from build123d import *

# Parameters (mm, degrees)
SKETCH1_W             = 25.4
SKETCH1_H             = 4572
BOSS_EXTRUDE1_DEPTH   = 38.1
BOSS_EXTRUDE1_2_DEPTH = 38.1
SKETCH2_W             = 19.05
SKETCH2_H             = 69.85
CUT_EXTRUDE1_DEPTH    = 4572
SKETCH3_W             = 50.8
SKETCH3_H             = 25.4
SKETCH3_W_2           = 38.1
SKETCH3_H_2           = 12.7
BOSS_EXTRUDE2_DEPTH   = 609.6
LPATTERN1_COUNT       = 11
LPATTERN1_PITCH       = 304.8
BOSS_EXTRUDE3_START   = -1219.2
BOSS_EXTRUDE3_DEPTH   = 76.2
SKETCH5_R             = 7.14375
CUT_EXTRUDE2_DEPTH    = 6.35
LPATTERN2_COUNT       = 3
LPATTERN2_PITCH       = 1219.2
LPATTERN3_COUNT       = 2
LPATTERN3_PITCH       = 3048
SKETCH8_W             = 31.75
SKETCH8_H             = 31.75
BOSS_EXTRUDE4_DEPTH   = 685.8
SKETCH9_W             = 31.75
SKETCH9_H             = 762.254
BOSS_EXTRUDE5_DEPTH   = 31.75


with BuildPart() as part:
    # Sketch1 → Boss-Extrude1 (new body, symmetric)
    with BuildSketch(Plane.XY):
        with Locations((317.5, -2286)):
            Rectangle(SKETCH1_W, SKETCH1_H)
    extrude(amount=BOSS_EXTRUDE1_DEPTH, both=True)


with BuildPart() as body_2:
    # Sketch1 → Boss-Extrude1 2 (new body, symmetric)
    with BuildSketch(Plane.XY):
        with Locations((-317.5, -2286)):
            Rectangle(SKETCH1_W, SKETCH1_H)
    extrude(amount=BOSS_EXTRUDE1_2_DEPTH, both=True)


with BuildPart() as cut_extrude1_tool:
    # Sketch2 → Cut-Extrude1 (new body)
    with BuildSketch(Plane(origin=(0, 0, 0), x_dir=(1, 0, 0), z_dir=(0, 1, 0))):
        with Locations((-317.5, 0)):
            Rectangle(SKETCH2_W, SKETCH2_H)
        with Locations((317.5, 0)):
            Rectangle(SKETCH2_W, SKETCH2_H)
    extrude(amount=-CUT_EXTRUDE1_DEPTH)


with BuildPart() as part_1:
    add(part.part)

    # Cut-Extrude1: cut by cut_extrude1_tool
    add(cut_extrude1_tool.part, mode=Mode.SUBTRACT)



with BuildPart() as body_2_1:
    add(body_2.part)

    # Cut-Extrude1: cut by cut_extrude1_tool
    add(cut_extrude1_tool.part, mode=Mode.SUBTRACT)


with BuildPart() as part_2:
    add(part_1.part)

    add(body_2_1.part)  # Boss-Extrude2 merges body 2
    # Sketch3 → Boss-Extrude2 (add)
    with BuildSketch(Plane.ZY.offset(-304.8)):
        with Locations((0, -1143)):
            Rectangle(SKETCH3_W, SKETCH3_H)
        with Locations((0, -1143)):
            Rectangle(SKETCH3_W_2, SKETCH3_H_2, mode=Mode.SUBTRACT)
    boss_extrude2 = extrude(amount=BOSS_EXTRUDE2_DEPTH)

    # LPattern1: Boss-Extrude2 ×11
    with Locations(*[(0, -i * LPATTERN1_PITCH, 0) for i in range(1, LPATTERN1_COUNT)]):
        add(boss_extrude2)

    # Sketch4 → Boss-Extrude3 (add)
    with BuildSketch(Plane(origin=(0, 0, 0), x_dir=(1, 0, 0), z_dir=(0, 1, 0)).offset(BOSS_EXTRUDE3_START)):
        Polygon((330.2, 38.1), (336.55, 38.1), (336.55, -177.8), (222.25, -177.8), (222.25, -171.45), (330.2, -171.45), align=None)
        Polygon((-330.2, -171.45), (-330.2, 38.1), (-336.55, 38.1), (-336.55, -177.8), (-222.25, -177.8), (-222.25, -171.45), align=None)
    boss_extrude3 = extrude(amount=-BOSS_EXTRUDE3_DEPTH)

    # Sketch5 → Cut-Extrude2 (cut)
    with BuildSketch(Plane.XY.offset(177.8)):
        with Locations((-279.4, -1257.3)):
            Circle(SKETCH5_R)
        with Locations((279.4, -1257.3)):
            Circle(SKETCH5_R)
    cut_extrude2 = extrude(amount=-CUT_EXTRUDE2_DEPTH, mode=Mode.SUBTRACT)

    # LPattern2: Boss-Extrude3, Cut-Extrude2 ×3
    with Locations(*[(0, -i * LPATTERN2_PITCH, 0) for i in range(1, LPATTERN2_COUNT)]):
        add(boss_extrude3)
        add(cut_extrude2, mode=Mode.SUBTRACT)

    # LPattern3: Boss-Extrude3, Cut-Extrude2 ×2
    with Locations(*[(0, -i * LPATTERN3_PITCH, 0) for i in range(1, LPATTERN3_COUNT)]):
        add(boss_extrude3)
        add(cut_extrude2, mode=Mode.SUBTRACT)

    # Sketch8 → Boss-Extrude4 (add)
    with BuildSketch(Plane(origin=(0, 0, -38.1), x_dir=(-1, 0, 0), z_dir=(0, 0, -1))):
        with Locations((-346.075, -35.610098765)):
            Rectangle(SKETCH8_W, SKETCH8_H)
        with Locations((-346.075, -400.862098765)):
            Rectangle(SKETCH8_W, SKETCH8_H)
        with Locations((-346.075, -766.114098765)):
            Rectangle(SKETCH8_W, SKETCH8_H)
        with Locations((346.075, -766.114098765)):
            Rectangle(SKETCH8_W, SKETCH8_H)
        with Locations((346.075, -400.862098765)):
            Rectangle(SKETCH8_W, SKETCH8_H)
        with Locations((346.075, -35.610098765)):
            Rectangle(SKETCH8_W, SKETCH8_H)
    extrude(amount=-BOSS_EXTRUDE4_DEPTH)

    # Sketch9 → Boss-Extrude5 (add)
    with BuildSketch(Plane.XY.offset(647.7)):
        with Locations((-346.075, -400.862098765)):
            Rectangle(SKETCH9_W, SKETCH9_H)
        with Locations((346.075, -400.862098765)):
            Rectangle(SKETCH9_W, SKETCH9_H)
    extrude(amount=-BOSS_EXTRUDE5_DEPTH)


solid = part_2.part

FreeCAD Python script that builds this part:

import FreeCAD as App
import Part
import Sketcher
Q = App.Units.Quantity


def add_polygon(sketch, points):
    """Adds a closed chain of lines whose ends are joined by coincident constraints."""
    first, n = sketch.GeometryCount, len(points)
    for a, b in zip(points, points[1:] + points[:1]):
        sketch.addGeometry(Part.LineSegment(App.Vector(*a, 0), App.Vector(*b, 0)), False)
    for i in range(n):
        sketch.addConstraint(Sketcher.Constraint("Coincident", first + i, 2, first + (i + 1) % n, 1))

doc = App.newDocument("Part")
body = doc.addObject("PartDesign::Body", "Body")

sketch1 = doc.addObject("Sketcher::SketchObject", "Sketch")
body.addObject(sketch1)
sketch1.AttachmentSupport = (doc.XY_Plane, [""])
sketch1.MapMode = "FlatFace"
add_polygon(sketch1, [(304.8, 0), (304.8, -4572), (330.2, -4572), (330.2, 0)])
sketch1.addConstraint(Sketcher.Constraint("Vertical", 0))
sketch1.addConstraint(Sketcher.Constraint("Horizontal", 1))
sketch1.addConstraint(Sketcher.Constraint("Vertical", 2))
sketch1.addConstraint(Sketcher.Constraint("Horizontal", 3))
sketch1.addConstraint(Sketcher.Constraint("PointOnObject", 2, 2, -1))
sketch1.addConstraint(Sketcher.Constraint("DistanceX", 1, 1, 1, 2, Q("1 in")))
sketch1.addConstraint(Sketcher.Constraint("DistanceY", 0, 2, 0, 1, Q("180 in")))
sketch1.addConstraint(Sketcher.Constraint("DistanceX", -1, 1, 0, 2, Q("12 in")))
pad1 = doc.addObject("PartDesign::Pad", "Pad")
body.addObject(pad1)
pad1.Profile = sketch1
pad1.Length = Q("3 in")
pad1.Midplane = True
body2 = doc.addObject("PartDesign::Body", "Body001")

sketch2 = doc.addObject("Sketcher::SketchObject", "Sketch001")
body2.addObject(sketch2)
sketch2.AttachmentSupport = (doc.getObject("XY_Plane001"), [""])
sketch2.MapMode = "FlatFace"
add_polygon(sketch2, [(-330.2, 0), (-330.2, -4572), (-304.8, -4572), (-304.8, 0)])
sketch2.addConstraint(Sketcher.Constraint("Vertical", 0))
sketch2.addConstraint(Sketcher.Constraint("Horizontal", 1))
sketch2.addConstraint(Sketcher.Constraint("Vertical", 2))
sketch2.addConstraint(Sketcher.Constraint("Horizontal", 3))
sketch2.addConstraint(Sketcher.Constraint("PointOnObject", 2, 2, -1))
sketch2.addConstraint(Sketcher.Constraint("DistanceX", 1, 1, 1, 2, Q("1 in")))
sketch2.addConstraint(Sketcher.Constraint("DistanceY", 0, 2, 0, 1, Q("180 in")))
sketch2.addConstraint(Sketcher.Constraint("DistanceX", 0, 2, -1, 1, Q("13 in")))
pad2 = doc.addObject("PartDesign::Pad", "Pad001")
body2.addObject(pad2)
pad2.Profile = sketch2
pad2.Length = Q("3 in")
pad2.Midplane = True
body3 = doc.addObject("PartDesign::Body", "Body002")
body3.AllowCompound = True

sketch3 = doc.addObject("Sketcher::SketchObject", "Sketch002")
body3.addObject(sketch3)
sketch3.AttachmentSupport = (doc.getObject("XZ_Plane002"), [""])
sketch3.MapMode = "FlatFace"
add_polygon(sketch3, [(-327.025, -34.925), (-327.025, 34.925), (-307.975, 34.925), (-307.975, -34.925)])
add_polygon(sketch3, [(307.975, -34.925), (307.975, 34.925), (327.025, 34.925), (327.025, -34.925)])
sketch3.addConstraint(Sketcher.Constraint("Vertical", 0))
sketch3.addConstraint(Sketcher.Constraint("Horizontal", 1))
sketch3.addConstraint(Sketcher.Constraint("Vertical", 2))
sketch3.addConstraint(Sketcher.Constraint("Horizontal", 3))
sketch3.addConstraint(Sketcher.Constraint("Vertical", 4))
sketch3.addConstraint(Sketcher.Constraint("Horizontal", 5))
sketch3.addConstraint(Sketcher.Constraint("Vertical", 6))
sketch3.addConstraint(Sketcher.Constraint("Horizontal", 7))
sketch3.addConstraint(Sketcher.Constraint("Symmetric", 2, 2, 4, 2, -1, 1))
sketch3.addConstraint(Sketcher.Constraint("Symmetric", 0, 2, 6, 2, -1, 1))
sketch3.addConstraint(Sketcher.Constraint("Horizontal", 1, 2, 4, 2))
sketch3.addConstraint(Sketcher.Constraint("DistanceX", 0, 2, 4, 2, Q("25 in")))
sketch3.addConstraint(Sketcher.Constraint("DistanceX", 1, 1, 1, 2, Q("0.75 in")))
sketch3.addConstraint(Sketcher.Constraint("DistanceY", 0, 1, 0, 2, Q("2.75 in")))
pad3 = doc.addObject("PartDesign::Pad", "Pad002")
body3.addObject(pad3)
pad3.Profile = sketch3
pad3.Length = Q("180 in")
doc.recompute()

body4 = doc.addObject("PartDesign::Body", "Body003")
body4.BaseFeature = body3
boolean = doc.addObject("PartDesign::Boolean", "Boolean")
body.addObject(boolean)
boolean.Type = "Cut"
boolean.addObjects([body4])
doc.recompute()

boolean2 = doc.addObject("PartDesign::Boolean", "Boolean001")
body2.addObject(boolean2)
boolean2.Type = "Cut"
boolean2.addObjects([body3])
body.AllowCompound = True
doc.recompute()

boolean3 = doc.addObject("PartDesign::Boolean", "Boolean002")
body.addObject(boolean3)
boolean3.Type = "Fuse"
boolean3.addObjects([body2])

sketch4 = doc.addObject("Sketcher::SketchObject", "Sketch003")
body.addObject(sketch4)
sketch4.AttachmentSupport = (doc.YZ_Plane, [""])
sketch4.MapMode = "FlatFace"
sketch4.AttachmentOffset = App.Placement(App.Vector(0, 0, 12 * 25.4), App.Rotation())
add_polygon(sketch4, [(-1130.3, -25.4), (-1155.7, -25.4), (-1155.7, 25.4), (-1130.3, 25.4)])
add_polygon(sketch4, [(-1149.35, 19.05), (-1149.35, -19.05), (-1136.65, -19.05), (-1136.65, 19.05)])
sketch4.addConstraint(Sketcher.Constraint("Horizontal", 0))
sketch4.addConstraint(Sketcher.Constraint("Vertical", 1))
sketch4.addConstraint(Sketcher.Constraint("Horizontal", 2))
sketch4.addConstraint(Sketcher.Constraint("Vertical", 3))
sketch4.addConstraint(Sketcher.Constraint("Vertical", 4))
sketch4.addConstraint(Sketcher.Constraint("Horizontal", 5))
sketch4.addConstraint(Sketcher.Constraint("Vertical", 6))
sketch4.addConstraint(Sketcher.Constraint("Horizontal", 7))
sketch4.addConstraint(Sketcher.Constraint("DistanceX", 0, 2, 0, 1, Q("1 in")))
sketch4.addConstraint(Sketcher.Constraint("DistanceY", 1, 1, 1, 2, Q("2 in")))
sketch4.addConstraint(Sketcher.Constraint("DistanceX", 5, 1, 5, 2, Q("0.5 in")))
sketch4.addConstraint(Sketcher.Constraint("DistanceY", 4, 2, 4, 1, Q("1.5 in")))
sketch4.addConstraint(Sketcher.Constraint("DistanceY", 0, 2, -1, 1, Q("1 in")))
sketch4.addConstraint(Sketcher.Constraint("DistanceX", 0, 2, -1, 1, Q("45.5 in")))
sketch4.addConstraint(Sketcher.Constraint("DistanceX", 4, 2, -1, 1, Q("45.25 in")))
sketch4.addConstraint(Sketcher.Constraint("DistanceY", 4, 2, -1, 1, Q("0.75 in")))
pad4 = doc.addObject("PartDesign::Pad", "Pad003")
body.addObject(pad4)
pad4.Profile = sketch4
pad4.Length = Q("24 in")
pad4.Reversed = True
doc.recompute()

linearpattern = doc.addObject("PartDesign::LinearPattern", "LinearPattern")
body.addObject(linearpattern)
linearpattern.Originals = [pad4]
linearpattern.Direction = (doc.Y_Axis, [""])
linearpattern.Mode = "offset"
linearpattern.Offset = Q("12 in")
linearpattern.Occurrences = 11
linearpattern.Reversed = True
body.Tip = linearpattern

sketch5 = doc.addObject("Sketcher::SketchObject", "Sketch004")
body.addObject(sketch5)
sketch5.AttachmentSupport = (doc.XZ_Plane, [""])
sketch5.MapMode = "FlatFace"
sketch5.AttachmentOffset = App.Placement(App.Vector(0, 0, 48 * 25.4), App.Rotation())
add_polygon(sketch5, [(336.55, -38.1), (330.2, -38.1), (330.2, 171.45), (222.25, 171.45), (222.25, 177.8), (336.55, 177.8)])
add_polygon(sketch5, [(-330.2, 171.45), (-330.2, -38.1), (-336.55, -38.1), (-336.55, 177.8), (-222.25, 177.8), (-222.25, 171.45)])
sketch5.addConstraint(Sketcher.Constraint("Horizontal", 0))
sketch5.addConstraint(Sketcher.Constraint("Vertical", 1))
sketch5.addConstraint(Sketcher.Constraint("Horizontal", 2))
sketch5.addConstraint(Sketcher.Constraint("Vertical", 3))
sketch5.addConstraint(Sketcher.Constraint("Horizontal", 4))
sketch5.addConstraint(Sketcher.Constraint("Vertical", 5))
sketch5.addConstraint(Sketcher.Constraint("Vertical", 6))
sketch5.addConstraint(Sketcher.Constraint("Horizontal", 7))
sketch5.addConstraint(Sketcher.Constraint("Vertical", 8))
sketch5.addConstraint(Sketcher.Constraint("Horizontal", 9))
sketch5.addConstraint(Sketcher.Constraint("Vertical", 10))
sketch5.addConstraint(Sketcher.Constraint("Horizontal", 11))
sketch5.addConstraint(Sketcher.Constraint("Symmetric", 0, 2, 6, 2, -2))
sketch5.addConstraint(Sketcher.Constraint("Symmetric", 4, 2, 8, 2, -2))
sketch5.addConstraint(Sketcher.Constraint("Symmetric", 2, 2, 10, 2, -2))
sketch5.addConstraint(Sketcher.Constraint("Equal", 7, 3))
sketch5.addConstraint(Sketcher.Constraint("DistanceX", 4, 1, 4, 2, Q("4.5 in")))
sketch5.addConstraint(Sketcher.Constraint("DistanceY", 5, 2, 5, 1, Q("8.5 in")))
sketch5.addConstraint(Sketcher.Constraint("DistanceX", -1, 1, 0, 2, Q("13 in")))
sketch5.addConstraint(Sketcher.Constraint("DistanceY", -1, 1, 3, 2, Q("7 in")))
sketch5.addConstraint(Sketcher.Constraint("DistanceX", 7, 2, 2, 2, Q("22 in")))
pad5 = doc.addObject("PartDesign::Pad", "Pad004")
body.addObject(pad5)
pad5.Profile = sketch5
pad5.Length = Q("3 in")

sketch6 = doc.addObject("Sketcher::SketchObject", "Sketch005")
body.addObject(sketch6)
sketch6.AttachmentSupport = (doc.XY_Plane, [""])
sketch6.MapMode = "FlatFace"
sketch6.AttachmentOffset = App.Placement(App.Vector(0, 0, 7 * 25.4), App.Rotation())
sketch6.addGeometry(Part.Circle(App.Vector(-279.4, -1257.3, 0), App.Vector(0, 0, 1), 7.14375), False)
sketch6.addGeometry(Part.Circle(App.Vector(279.4, -1257.3, 0), App.Vector(0, 0, 1), 7.14375), False)
sketch6.addConstraint(Sketcher.Constraint("Equal", 0, 1))
sketch6.addConstraint(Sketcher.Constraint("Symmetric", 0, 3, 1, 3, -2))
sketch6.addConstraint(Sketcher.Constraint("Diameter", 0, Q("0.5625 in")))
sketch6.addConstraint(Sketcher.Constraint("DistanceX", 0, 3, -1, 1, Q("11 in")))
sketch6.addConstraint(Sketcher.Constraint("DistanceY", 0, 3, -1, 1, Q("49.5 in")))
pocket1 = doc.addObject("PartDesign::Pocket", "Pocket")
body.addObject(pocket1)
pocket1.Profile = sketch6
pocket1.Length = Q("0.25 in")
doc.recompute()

linearpattern2 = doc.addObject("PartDesign::LinearPattern", "LinearPattern001")
body.addObject(linearpattern2)
linearpattern2.Originals = [pad5, pocket1]
linearpattern2.Direction = (doc.Y_Axis, [""])
linearpattern2.Mode = "offset"
linearpattern2.Offset = Q("48 in")
linearpattern2.Occurrences = 3
linearpattern2.Reversed = True
body.Tip = linearpattern2
doc.recompute()

linearpattern3 = doc.addObject("PartDesign::LinearPattern", "LinearPattern002")
body.addObject(linearpattern3)
linearpattern3.Originals = [pad5, pocket1]
linearpattern3.Direction = (doc.Y_Axis, [""])
linearpattern3.Mode = "offset"
linearpattern3.Offset = Q("120 in")
linearpattern3.Occurrences = 2
linearpattern3.Reversed = True
body.Tip = linearpattern3

sketch7 = doc.addObject("Sketcher::SketchObject", "Sketch006")
body.addObject(sketch7)
sketch7.AttachmentSupport = (doc.XY_Plane, [""])
sketch7.MapMode = "FlatFace"
sketch7.AttachmentOffset = App.Placement(App.Vector(0, 0, -1.5 * 25.4), App.Rotation())
add_polygon(sketch7, [(361.95, -19.735099), (361.95, -51.485099), (330.2, -51.485099), (330.2, -19.735099)])
add_polygon(sketch7, [(361.95, -384.987099), (361.95, -416.737099), (330.2, -416.737099), (330.2, -384.987099)])
add_polygon(sketch7, [(361.95, -750.239099), (361.95, -781.989099), (330.2, -781.989099), (330.2, -750.239099)])
add_polygon(sketch7, [(-330.2, -750.239099), (-330.2, -781.989099), (-361.95, -781.989099), (-361.95, -750.239099)])
add_polygon(sketch7, [(-330.2, -384.987099), (-330.2, -416.737099), (-361.95, -416.737099), (-361.95, -384.987099)])
add_polygon(sketch7, [(-330.2, -19.735099), (-330.2, -51.485099), (-361.95, -51.485099), (-361.95, -19.735099)])
sketch7.addConstraint(Sketcher.Constraint("Vertical", 0))
sketch7.addConstraint(Sketcher.Constraint("Horizontal", 1))
sketch7.addConstraint(Sketcher.Constraint("Vertical", 2))
sketch7.addConstraint(Sketcher.Constraint("Horizontal", 3))
sketch7.addConstraint(Sketcher.Constraint("Vertical", 4))
sketch7.addConstraint(Sketcher.Constraint("Horizontal", 5))
sketch7.addConstraint(Sketcher.Constraint("Vertical", 6))
sketch7.addConstraint(Sketcher.Constraint("Horizontal", 7))
sketch7.addConstraint(Sketcher.Constraint("Vertical", 8))
sketch7.addConstraint(Sketcher.Constraint("Horizontal", 9))
sketch7.addConstraint(Sketcher.Constraint("Vertical", 10))
sketch7.addConstraint(Sketcher.Constraint("Horizontal", 11))
sketch7.addConstraint(Sketcher.Constraint("Vertical", 12))
sketch7.addConstraint(Sketcher.Constraint("Horizontal", 13))
sketch7.addConstraint(Sketcher.Constraint("Vertical", 14))
sketch7.addConstraint(Sketcher.Constraint("Horizontal", 15))
sketch7.addConstraint(Sketcher.Constraint("Vertical", 16))
sketch7.addConstraint(Sketcher.Constraint("Horizontal", 17))
sketch7.addConstraint(Sketcher.Constraint("Vertical", 18))
sketch7.addConstraint(Sketcher.Constraint("Horizontal", 19))
sketch7.addConstraint(Sketcher.Constraint("Vertical", 20))
sketch7.addConstraint(Sketcher.Constraint("Horizontal", 21))
sketch7.addConstraint(Sketcher.Constraint("Vertical", 22))
sketch7.addConstraint(Sketcher.Constraint("Horizontal", 23))
sketch7.addConstraint(Sketcher.Constraint("Symmetric", 9, 2, 12, 2, -2))
sketch7.addConstraint(Sketcher.Constraint("Symmetric", 11, 2, 14, 2, -2))
sketch7.addConstraint(Sketcher.Constraint("Symmetric", 5, 2, 16, 2, -2))
sketch7.addConstraint(Sketcher.Constraint("Symmetric", 7, 2, 18, 2, -2))
sketch7.addConstraint(Sketcher.Constraint("Symmetric", 1, 2, 20, 2, -2))
sketch7.addConstraint(Sketcher.Constraint("Symmetric", 3, 2, 22, 2, -2))
sketch7.addConstraint(Sketcher.Constraint("Vertical", 3, 2, 4, 2))
sketch7.addConstraint(Sketcher.Constraint("Vertical", 2, 2, 5, 2))
sketch7.addConstraint(Sketcher.Constraint("Vertical", 7, 2, 8, 2))
sketch7.addConstraint(Sketcher.Constraint("Vertical", 6, 2, 9, 2))
sketch7.addConstraint(Sketcher.Constraint("Equal", 23, 0))
sketch7.addConstraint(Sketcher.Constraint("Equal", 2, 4))
sketch7.addConstraint(Sketcher.Constraint("Equal", 6, 8))
sketch7.addConstraint(Sketcher.Constraint("DistanceX", -1, 1, 1, 2, Q("13 in")))
sketch7.addConstraint(Sketcher.Constraint("DistanceX", 1, 2, 1, 1, Q("1.25 in")))
sketch7.addConstraint(Sketcher.Constraint("DistanceY", 4, 2, 0, 2, Q("14.38 in")))
sketch7.addConstraint(Sketcher.Constraint("DistanceY", 8, 2, 4, 2, Q("14.38 in")))
sketch7.addConstraint(Sketcher.Constraint("DistanceY", 0, 2, -1, 1, Q("51.485099 mm")))
pad6 = doc.addObject("PartDesign::Pad", "Pad005")
body.addObject(pad6)
pad6.Profile = sketch7
pad6.Length = Q("27 in")

sketch8 = doc.addObject("Sketcher::SketchObject", "Sketch007")
body.addObject(sketch8)
sketch8.AttachmentSupport = (doc.XY_Plane, [""])
sketch8.MapMode = "FlatFace"
sketch8.AttachmentOffset = App.Placement(App.Vector(0, 0, 25.5 * 25.4), App.Rotation())
add_polygon(sketch8, [(-361.95, -19.735099), (-361.95, -781.989099), (-330.2, -781.989099), (-330.2, -19.735099)])
add_polygon(sketch8, [(330.2, -19.735099), (330.2, -781.989099), (361.95, -781.989099), (361.95, -19.735099)])
sketch8.addConstraint(Sketcher.Constraint("Vertical", 0))
sketch8.addConstraint(Sketcher.Constraint("Horizontal", 1))
sketch8.addConstraint(Sketcher.Constraint("Vertical", 2))
sketch8.addConstraint(Sketcher.Constraint("Horizontal", 3))
sketch8.addConstraint(Sketcher.Constraint("Vertical", 4))
sketch8.addConstraint(Sketcher.Constraint("Horizontal", 5))
sketch8.addConstraint(Sketcher.Constraint("Vertical", 6))
sketch8.addConstraint(Sketcher.Constraint("Horizontal", 7))
sketch8.addConstraint(Sketcher.Constraint("Symmetric", 1, 2, 4, 2, -2))
sketch8.addConstraint(Sketcher.Constraint("Symmetric", 3, 2, 6, 2, -2))
sketch8.addConstraint(Sketcher.Constraint("DistanceX", 1, 2, -1, 1, Q("13 in")))
sketch8.addConstraint(Sketcher.Constraint("DistanceX", 1, 1, 1, 2, Q("1.25 in")))
sketch8.addConstraint(Sketcher.Constraint("DistanceY", 0, 2, 0, 1, Q("30.01 in")))
sketch8.addConstraint(Sketcher.Constraint("DistanceY", 0, 2, -1, 1, Q("781.989099 mm")))
pad7 = doc.addObject("PartDesign::Pad", "Pad006")
body.addObject(pad7)
pad7.Profile = sketch8
pad7.Length = Q("1.25 in")
pad7.Reversed = True

doc.recompute()
